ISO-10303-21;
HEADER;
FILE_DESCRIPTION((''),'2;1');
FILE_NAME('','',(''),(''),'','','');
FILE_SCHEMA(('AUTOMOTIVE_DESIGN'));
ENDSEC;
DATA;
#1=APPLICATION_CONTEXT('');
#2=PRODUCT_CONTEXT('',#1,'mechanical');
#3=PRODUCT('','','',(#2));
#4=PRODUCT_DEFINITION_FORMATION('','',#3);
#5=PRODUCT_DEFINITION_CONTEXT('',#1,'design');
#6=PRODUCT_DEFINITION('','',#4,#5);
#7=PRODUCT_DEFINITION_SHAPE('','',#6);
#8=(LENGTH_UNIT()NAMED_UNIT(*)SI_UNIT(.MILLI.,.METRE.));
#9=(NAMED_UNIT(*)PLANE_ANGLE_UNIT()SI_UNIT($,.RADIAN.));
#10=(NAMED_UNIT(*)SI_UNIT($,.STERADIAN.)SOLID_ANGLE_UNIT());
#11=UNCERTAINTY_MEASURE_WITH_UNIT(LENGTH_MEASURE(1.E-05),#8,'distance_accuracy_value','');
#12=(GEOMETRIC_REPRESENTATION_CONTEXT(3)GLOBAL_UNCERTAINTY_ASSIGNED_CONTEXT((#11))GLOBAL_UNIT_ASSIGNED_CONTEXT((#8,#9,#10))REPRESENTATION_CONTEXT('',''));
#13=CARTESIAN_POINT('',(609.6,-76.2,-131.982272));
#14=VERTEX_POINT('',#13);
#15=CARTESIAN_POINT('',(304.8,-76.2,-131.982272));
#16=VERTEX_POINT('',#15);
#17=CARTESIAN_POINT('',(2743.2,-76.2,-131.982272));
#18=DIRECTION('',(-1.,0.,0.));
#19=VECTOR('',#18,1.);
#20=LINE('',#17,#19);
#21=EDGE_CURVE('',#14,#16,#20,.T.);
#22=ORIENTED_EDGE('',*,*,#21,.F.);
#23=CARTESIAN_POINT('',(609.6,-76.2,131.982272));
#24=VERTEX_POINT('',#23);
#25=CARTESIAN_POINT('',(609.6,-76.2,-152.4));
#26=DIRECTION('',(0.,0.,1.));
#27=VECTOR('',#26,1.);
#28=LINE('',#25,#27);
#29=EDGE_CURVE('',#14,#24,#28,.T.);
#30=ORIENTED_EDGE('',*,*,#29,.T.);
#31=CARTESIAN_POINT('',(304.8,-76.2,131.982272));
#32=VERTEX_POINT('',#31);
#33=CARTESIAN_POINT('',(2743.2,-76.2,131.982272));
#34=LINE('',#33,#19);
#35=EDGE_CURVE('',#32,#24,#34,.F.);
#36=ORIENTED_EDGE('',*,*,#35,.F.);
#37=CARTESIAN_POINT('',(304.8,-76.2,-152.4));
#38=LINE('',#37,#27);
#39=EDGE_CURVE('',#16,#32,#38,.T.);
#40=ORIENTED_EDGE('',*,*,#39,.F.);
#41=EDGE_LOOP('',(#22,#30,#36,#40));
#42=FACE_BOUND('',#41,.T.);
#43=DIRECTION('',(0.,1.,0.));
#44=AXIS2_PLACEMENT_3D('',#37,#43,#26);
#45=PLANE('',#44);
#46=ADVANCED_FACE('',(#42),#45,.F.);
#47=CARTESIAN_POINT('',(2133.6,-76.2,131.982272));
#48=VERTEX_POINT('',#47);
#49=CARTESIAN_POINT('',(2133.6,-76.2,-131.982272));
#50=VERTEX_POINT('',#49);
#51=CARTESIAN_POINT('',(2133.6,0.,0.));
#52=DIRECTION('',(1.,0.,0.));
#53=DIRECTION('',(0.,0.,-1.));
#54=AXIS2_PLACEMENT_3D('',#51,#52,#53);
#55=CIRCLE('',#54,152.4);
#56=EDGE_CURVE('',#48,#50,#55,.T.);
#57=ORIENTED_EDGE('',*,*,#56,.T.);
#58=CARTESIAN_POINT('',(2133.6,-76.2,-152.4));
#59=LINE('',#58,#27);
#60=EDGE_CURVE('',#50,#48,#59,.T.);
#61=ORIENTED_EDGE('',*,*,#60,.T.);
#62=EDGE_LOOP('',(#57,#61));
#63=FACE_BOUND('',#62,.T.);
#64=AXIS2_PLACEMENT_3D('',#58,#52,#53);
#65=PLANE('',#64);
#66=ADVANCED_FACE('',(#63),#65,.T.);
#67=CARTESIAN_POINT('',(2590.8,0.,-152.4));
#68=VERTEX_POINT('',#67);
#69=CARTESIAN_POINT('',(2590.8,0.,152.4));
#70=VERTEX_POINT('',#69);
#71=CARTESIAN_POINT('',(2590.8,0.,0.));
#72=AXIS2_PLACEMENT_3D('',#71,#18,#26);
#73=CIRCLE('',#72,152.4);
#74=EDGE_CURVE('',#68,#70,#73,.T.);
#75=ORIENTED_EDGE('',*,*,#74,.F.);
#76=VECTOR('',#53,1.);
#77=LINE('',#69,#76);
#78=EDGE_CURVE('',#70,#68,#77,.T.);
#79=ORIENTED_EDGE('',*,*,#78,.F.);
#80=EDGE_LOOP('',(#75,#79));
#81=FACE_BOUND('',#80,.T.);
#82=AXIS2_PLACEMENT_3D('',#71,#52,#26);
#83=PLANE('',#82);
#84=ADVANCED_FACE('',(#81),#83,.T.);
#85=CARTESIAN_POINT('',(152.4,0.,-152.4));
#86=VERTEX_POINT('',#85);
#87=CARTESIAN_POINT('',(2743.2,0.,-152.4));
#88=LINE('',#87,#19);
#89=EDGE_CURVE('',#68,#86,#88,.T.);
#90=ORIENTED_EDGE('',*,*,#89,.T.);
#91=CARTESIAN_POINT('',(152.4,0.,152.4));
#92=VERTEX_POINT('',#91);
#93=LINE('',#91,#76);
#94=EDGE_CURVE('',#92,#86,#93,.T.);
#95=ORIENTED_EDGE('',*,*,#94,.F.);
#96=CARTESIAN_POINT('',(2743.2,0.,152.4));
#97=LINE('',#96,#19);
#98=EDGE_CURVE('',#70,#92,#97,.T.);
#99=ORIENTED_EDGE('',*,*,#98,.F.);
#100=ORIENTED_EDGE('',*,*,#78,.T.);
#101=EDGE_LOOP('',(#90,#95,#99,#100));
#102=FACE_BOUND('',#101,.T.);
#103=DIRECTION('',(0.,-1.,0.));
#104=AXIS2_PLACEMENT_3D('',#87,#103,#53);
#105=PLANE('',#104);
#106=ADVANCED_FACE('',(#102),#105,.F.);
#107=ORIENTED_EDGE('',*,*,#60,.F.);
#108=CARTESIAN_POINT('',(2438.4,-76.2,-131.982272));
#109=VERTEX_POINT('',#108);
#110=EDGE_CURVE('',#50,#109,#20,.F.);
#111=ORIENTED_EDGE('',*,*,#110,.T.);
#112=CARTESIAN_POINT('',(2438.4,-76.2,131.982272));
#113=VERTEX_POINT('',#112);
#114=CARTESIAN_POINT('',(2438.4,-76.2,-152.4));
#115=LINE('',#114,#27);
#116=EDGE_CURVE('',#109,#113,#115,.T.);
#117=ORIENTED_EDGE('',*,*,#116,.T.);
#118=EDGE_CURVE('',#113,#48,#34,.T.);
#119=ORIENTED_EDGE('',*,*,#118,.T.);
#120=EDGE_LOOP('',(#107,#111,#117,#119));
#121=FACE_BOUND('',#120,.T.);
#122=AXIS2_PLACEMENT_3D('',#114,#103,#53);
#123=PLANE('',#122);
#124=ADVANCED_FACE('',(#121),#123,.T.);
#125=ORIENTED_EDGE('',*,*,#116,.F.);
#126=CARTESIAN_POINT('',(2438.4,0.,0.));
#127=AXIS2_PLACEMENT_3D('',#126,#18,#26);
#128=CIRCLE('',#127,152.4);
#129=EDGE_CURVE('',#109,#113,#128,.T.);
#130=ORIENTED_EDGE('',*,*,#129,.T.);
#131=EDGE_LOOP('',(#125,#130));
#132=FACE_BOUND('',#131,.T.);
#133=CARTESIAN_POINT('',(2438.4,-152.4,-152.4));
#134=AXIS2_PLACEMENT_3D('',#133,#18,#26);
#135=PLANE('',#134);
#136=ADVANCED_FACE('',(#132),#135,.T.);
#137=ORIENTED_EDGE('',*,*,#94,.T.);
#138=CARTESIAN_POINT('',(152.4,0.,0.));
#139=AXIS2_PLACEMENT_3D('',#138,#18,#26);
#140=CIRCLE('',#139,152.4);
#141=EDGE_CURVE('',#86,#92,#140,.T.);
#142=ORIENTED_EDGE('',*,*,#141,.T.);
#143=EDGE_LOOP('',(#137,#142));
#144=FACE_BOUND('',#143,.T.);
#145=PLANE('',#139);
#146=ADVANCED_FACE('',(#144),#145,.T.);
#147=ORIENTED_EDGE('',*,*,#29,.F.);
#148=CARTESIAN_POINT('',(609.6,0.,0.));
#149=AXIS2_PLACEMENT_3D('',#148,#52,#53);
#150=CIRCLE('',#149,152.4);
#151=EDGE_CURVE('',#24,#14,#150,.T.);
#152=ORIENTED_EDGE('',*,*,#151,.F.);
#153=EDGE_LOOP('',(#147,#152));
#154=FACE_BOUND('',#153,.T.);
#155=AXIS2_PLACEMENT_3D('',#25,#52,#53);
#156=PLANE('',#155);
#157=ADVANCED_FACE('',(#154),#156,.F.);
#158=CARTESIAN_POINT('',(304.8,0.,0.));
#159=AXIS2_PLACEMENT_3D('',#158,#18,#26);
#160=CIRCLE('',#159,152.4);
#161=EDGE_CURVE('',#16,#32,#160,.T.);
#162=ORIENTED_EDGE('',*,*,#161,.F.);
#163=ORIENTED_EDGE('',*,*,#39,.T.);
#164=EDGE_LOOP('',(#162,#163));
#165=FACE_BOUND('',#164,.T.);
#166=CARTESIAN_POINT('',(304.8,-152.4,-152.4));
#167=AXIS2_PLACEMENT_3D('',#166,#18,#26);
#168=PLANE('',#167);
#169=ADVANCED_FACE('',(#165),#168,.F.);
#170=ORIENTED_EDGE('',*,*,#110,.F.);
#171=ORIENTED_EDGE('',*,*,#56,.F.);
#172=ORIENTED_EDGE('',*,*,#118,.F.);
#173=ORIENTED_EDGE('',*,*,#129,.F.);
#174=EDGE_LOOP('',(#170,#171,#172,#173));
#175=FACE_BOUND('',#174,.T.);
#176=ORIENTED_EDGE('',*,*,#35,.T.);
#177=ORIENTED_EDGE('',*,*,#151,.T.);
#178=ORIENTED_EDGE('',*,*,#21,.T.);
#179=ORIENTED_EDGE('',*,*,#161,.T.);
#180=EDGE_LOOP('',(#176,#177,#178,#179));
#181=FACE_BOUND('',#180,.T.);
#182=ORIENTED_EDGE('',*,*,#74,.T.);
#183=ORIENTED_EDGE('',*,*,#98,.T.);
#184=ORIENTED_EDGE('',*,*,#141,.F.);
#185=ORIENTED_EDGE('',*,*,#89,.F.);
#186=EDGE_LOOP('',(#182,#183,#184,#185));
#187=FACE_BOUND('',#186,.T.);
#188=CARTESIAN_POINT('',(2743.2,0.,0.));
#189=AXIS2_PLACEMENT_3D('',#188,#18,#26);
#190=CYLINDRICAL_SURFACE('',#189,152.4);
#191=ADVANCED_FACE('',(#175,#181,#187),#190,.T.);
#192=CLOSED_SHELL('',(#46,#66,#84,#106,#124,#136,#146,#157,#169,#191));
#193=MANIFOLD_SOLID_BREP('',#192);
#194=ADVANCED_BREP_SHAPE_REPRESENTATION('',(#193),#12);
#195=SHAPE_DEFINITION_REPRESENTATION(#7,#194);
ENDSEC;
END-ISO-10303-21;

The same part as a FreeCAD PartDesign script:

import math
import FreeCAD as App
import Part
import Sketcher
Q = App.Units.Quantity


def add_polygon(sketch, points):
    """Adds a closed chain of lines whose ends are joined by coincident constraints."""
    first, n = sketch.GeometryCount, len(points)
    for a, b in zip(points, points[1:] + points[:1]):
        sketch.addGeometry(Part.LineSegment(App.Vector(*a, 0), App.Vector(*b, 0)), False)
    for i in range(n):
        sketch.addConstraint(Sketcher.Constraint("Coincident", first + i, 2, first + (i + 1) % n, 1))

doc = App.newDocument("Part")
body = doc.addObject("PartDesign::Body", "Body")

# Sketch on YZ plane
sketch1 = doc.addObject("Sketcher::SketchObject", "Sketch")
body.addObject(sketch1)
sketch1.AttachmentSupport = (doc.YZ_Plane, [""])
sketch1.MapMode = "FlatFace"
sketch1.addGeometry([
    Part.LineSegment(App.Vector(0, -152, 0), App.Vector(0, 152, 0)),
    Part.ArcOfCircle(Part.Circle(App.Vector(0, 0, 0), App.Vector(0, 0, 1), 152), math.radians(90), math.radians(270)),
], False)
sketch1.addConstraint([
    Sketcher.Constraint("Coincident", 0, 1, 1, 2),
    Sketcher.Constraint("Coincident", 1, 1, 0, 2),
    Sketcher.Constraint("Vertical", 0),
    Sketcher.Constraint("Coincident", 1, 3, -1, 1),
    Sketcher.Constraint("PointOnObject", 0, 1, -2),
    Sketcher.Constraint("Radius", 1, Q("6 in")),
])
pad1 = doc.addObject("PartDesign::Pad", "Pad")
body.addObject(pad1)
pad1.Profile = sketch1
pad1.Length = Q("108 in")

# Sketch on XY plane
sketch2 = doc.addObject("Sketcher::SketchObject", "Sketch001")
body.addObject(sketch2)
sketch2.AttachmentSupport = (doc.XY_Plane, [""])
sketch2.MapMode = "FlatFace"
add_polygon(sketch2, [(305, -76), (305, -152), (610, -152), (610, -76)])  # lines 0-3
sketch2.addConstraint([
    Sketcher.Constraint("Vertical", 0),
    Sketcher.Constraint("Horizontal", 1),
    Sketcher.Constraint("Vertical", 2),
    Sketcher.Constraint("Horizontal", 3),
    Sketcher.Constraint("DistanceX", 1, 1, 1, 2, Q("12 in")),
    Sketcher.Constraint("DistanceY", 0, 2, 0, 1, Q("3 in")),
    Sketcher.Constraint("DistanceX", -1, 1, 0, 2, Q("12 in")),
    Sketcher.Constraint("DistanceY", 0, 2, -1, 1, Q("6 in")),
])
pocket1 = doc.addObject("PartDesign::Pocket", "Pocket")
body.addObject(pocket1)
pocket1.Profile = sketch2
pocket1.Length = 5505.307282
pocket1.Midplane = True
doc.recompute()

datumplane = doc.addObject("PartDesign::Plane", "DatumPlane")
body.addObject(datumplane)
datumplane.AttachmentSupport = (doc.YZ_Plane, [""])
datumplane.MapMode = "FlatFace"
datumplane.AttachmentOffset = App.Placement(App.Vector(0, 0, 54 * 25.4), App.Rotation())
mirrored = doc.addObject("PartDesign::Mirrored", "Mirrored")
body.addObject(mirrored)
mirrored.Originals = [pocket1]
mirrored.MirrorPlane = (datumplane, [""])
body.Tip = mirrored

# Sketch on YZ plane
sketch3 = doc.addObject("Sketcher::SketchObject", "Sketch002")
body.addObject(sketch3)
sketch3.AttachmentSupport = (doc.YZ_Plane, [""])
sketch3.MapMode = "FlatFace"
sketch3.addGeometry([
    Part.LineSegment(App.Vector(0, 152, 0), App.Vector(0, -152, 0)),
    Part.ArcOfCircle(Part.Circle(App.Vector(0, 0, 0), App.Vector(0, 0, 1), 152), math.radians(90), math.radians(270)),
], False)
sketch3.addConstraint([
    Sketcher.Constraint("Coincident", 0, 1, 1, 1),
    Sketcher.Constraint("Coincident", 1, 2, 0, 2),
    Sketcher.Constraint("Vertical", 0),
    Sketcher.Constraint("Coincident", 1, 3, -1, 1),
    Sketcher.Constraint("PointOnObject", 0, 1, -2),
    Sketcher.Constraint("Radius", 1, Q("6 in")),
])
pocket2 = doc.addObject("PartDesign::Pocket", "Pocket001")
body.addObject(pocket2)
pocket2.Profile = sketch3
pocket2.Length = Q("6 in")
pocket2.Reversed = True
doc.recompute()

datumplane2 = doc.addObject("PartDesign::Plane", "DatumPlane001")
body.addObject(datumplane2)
datumplane2.AttachmentSupport = (doc.YZ_Plane, [""])
datumplane2.MapMode = "FlatFace"
datumplane2.AttachmentOffset = App.Placement(App.Vector(0, 0, 54 * 25.4), App.Rotation())
mirrored2 = doc.addObject("PartDesign::Mirrored", "Mirrored001")
body.addObject(mirrored2)
mirrored2.Originals = [pocket2]
mirrored2.MirrorPlane = (datumplane2, [""])
body.Tip = mirrored2

doc.recompute()
